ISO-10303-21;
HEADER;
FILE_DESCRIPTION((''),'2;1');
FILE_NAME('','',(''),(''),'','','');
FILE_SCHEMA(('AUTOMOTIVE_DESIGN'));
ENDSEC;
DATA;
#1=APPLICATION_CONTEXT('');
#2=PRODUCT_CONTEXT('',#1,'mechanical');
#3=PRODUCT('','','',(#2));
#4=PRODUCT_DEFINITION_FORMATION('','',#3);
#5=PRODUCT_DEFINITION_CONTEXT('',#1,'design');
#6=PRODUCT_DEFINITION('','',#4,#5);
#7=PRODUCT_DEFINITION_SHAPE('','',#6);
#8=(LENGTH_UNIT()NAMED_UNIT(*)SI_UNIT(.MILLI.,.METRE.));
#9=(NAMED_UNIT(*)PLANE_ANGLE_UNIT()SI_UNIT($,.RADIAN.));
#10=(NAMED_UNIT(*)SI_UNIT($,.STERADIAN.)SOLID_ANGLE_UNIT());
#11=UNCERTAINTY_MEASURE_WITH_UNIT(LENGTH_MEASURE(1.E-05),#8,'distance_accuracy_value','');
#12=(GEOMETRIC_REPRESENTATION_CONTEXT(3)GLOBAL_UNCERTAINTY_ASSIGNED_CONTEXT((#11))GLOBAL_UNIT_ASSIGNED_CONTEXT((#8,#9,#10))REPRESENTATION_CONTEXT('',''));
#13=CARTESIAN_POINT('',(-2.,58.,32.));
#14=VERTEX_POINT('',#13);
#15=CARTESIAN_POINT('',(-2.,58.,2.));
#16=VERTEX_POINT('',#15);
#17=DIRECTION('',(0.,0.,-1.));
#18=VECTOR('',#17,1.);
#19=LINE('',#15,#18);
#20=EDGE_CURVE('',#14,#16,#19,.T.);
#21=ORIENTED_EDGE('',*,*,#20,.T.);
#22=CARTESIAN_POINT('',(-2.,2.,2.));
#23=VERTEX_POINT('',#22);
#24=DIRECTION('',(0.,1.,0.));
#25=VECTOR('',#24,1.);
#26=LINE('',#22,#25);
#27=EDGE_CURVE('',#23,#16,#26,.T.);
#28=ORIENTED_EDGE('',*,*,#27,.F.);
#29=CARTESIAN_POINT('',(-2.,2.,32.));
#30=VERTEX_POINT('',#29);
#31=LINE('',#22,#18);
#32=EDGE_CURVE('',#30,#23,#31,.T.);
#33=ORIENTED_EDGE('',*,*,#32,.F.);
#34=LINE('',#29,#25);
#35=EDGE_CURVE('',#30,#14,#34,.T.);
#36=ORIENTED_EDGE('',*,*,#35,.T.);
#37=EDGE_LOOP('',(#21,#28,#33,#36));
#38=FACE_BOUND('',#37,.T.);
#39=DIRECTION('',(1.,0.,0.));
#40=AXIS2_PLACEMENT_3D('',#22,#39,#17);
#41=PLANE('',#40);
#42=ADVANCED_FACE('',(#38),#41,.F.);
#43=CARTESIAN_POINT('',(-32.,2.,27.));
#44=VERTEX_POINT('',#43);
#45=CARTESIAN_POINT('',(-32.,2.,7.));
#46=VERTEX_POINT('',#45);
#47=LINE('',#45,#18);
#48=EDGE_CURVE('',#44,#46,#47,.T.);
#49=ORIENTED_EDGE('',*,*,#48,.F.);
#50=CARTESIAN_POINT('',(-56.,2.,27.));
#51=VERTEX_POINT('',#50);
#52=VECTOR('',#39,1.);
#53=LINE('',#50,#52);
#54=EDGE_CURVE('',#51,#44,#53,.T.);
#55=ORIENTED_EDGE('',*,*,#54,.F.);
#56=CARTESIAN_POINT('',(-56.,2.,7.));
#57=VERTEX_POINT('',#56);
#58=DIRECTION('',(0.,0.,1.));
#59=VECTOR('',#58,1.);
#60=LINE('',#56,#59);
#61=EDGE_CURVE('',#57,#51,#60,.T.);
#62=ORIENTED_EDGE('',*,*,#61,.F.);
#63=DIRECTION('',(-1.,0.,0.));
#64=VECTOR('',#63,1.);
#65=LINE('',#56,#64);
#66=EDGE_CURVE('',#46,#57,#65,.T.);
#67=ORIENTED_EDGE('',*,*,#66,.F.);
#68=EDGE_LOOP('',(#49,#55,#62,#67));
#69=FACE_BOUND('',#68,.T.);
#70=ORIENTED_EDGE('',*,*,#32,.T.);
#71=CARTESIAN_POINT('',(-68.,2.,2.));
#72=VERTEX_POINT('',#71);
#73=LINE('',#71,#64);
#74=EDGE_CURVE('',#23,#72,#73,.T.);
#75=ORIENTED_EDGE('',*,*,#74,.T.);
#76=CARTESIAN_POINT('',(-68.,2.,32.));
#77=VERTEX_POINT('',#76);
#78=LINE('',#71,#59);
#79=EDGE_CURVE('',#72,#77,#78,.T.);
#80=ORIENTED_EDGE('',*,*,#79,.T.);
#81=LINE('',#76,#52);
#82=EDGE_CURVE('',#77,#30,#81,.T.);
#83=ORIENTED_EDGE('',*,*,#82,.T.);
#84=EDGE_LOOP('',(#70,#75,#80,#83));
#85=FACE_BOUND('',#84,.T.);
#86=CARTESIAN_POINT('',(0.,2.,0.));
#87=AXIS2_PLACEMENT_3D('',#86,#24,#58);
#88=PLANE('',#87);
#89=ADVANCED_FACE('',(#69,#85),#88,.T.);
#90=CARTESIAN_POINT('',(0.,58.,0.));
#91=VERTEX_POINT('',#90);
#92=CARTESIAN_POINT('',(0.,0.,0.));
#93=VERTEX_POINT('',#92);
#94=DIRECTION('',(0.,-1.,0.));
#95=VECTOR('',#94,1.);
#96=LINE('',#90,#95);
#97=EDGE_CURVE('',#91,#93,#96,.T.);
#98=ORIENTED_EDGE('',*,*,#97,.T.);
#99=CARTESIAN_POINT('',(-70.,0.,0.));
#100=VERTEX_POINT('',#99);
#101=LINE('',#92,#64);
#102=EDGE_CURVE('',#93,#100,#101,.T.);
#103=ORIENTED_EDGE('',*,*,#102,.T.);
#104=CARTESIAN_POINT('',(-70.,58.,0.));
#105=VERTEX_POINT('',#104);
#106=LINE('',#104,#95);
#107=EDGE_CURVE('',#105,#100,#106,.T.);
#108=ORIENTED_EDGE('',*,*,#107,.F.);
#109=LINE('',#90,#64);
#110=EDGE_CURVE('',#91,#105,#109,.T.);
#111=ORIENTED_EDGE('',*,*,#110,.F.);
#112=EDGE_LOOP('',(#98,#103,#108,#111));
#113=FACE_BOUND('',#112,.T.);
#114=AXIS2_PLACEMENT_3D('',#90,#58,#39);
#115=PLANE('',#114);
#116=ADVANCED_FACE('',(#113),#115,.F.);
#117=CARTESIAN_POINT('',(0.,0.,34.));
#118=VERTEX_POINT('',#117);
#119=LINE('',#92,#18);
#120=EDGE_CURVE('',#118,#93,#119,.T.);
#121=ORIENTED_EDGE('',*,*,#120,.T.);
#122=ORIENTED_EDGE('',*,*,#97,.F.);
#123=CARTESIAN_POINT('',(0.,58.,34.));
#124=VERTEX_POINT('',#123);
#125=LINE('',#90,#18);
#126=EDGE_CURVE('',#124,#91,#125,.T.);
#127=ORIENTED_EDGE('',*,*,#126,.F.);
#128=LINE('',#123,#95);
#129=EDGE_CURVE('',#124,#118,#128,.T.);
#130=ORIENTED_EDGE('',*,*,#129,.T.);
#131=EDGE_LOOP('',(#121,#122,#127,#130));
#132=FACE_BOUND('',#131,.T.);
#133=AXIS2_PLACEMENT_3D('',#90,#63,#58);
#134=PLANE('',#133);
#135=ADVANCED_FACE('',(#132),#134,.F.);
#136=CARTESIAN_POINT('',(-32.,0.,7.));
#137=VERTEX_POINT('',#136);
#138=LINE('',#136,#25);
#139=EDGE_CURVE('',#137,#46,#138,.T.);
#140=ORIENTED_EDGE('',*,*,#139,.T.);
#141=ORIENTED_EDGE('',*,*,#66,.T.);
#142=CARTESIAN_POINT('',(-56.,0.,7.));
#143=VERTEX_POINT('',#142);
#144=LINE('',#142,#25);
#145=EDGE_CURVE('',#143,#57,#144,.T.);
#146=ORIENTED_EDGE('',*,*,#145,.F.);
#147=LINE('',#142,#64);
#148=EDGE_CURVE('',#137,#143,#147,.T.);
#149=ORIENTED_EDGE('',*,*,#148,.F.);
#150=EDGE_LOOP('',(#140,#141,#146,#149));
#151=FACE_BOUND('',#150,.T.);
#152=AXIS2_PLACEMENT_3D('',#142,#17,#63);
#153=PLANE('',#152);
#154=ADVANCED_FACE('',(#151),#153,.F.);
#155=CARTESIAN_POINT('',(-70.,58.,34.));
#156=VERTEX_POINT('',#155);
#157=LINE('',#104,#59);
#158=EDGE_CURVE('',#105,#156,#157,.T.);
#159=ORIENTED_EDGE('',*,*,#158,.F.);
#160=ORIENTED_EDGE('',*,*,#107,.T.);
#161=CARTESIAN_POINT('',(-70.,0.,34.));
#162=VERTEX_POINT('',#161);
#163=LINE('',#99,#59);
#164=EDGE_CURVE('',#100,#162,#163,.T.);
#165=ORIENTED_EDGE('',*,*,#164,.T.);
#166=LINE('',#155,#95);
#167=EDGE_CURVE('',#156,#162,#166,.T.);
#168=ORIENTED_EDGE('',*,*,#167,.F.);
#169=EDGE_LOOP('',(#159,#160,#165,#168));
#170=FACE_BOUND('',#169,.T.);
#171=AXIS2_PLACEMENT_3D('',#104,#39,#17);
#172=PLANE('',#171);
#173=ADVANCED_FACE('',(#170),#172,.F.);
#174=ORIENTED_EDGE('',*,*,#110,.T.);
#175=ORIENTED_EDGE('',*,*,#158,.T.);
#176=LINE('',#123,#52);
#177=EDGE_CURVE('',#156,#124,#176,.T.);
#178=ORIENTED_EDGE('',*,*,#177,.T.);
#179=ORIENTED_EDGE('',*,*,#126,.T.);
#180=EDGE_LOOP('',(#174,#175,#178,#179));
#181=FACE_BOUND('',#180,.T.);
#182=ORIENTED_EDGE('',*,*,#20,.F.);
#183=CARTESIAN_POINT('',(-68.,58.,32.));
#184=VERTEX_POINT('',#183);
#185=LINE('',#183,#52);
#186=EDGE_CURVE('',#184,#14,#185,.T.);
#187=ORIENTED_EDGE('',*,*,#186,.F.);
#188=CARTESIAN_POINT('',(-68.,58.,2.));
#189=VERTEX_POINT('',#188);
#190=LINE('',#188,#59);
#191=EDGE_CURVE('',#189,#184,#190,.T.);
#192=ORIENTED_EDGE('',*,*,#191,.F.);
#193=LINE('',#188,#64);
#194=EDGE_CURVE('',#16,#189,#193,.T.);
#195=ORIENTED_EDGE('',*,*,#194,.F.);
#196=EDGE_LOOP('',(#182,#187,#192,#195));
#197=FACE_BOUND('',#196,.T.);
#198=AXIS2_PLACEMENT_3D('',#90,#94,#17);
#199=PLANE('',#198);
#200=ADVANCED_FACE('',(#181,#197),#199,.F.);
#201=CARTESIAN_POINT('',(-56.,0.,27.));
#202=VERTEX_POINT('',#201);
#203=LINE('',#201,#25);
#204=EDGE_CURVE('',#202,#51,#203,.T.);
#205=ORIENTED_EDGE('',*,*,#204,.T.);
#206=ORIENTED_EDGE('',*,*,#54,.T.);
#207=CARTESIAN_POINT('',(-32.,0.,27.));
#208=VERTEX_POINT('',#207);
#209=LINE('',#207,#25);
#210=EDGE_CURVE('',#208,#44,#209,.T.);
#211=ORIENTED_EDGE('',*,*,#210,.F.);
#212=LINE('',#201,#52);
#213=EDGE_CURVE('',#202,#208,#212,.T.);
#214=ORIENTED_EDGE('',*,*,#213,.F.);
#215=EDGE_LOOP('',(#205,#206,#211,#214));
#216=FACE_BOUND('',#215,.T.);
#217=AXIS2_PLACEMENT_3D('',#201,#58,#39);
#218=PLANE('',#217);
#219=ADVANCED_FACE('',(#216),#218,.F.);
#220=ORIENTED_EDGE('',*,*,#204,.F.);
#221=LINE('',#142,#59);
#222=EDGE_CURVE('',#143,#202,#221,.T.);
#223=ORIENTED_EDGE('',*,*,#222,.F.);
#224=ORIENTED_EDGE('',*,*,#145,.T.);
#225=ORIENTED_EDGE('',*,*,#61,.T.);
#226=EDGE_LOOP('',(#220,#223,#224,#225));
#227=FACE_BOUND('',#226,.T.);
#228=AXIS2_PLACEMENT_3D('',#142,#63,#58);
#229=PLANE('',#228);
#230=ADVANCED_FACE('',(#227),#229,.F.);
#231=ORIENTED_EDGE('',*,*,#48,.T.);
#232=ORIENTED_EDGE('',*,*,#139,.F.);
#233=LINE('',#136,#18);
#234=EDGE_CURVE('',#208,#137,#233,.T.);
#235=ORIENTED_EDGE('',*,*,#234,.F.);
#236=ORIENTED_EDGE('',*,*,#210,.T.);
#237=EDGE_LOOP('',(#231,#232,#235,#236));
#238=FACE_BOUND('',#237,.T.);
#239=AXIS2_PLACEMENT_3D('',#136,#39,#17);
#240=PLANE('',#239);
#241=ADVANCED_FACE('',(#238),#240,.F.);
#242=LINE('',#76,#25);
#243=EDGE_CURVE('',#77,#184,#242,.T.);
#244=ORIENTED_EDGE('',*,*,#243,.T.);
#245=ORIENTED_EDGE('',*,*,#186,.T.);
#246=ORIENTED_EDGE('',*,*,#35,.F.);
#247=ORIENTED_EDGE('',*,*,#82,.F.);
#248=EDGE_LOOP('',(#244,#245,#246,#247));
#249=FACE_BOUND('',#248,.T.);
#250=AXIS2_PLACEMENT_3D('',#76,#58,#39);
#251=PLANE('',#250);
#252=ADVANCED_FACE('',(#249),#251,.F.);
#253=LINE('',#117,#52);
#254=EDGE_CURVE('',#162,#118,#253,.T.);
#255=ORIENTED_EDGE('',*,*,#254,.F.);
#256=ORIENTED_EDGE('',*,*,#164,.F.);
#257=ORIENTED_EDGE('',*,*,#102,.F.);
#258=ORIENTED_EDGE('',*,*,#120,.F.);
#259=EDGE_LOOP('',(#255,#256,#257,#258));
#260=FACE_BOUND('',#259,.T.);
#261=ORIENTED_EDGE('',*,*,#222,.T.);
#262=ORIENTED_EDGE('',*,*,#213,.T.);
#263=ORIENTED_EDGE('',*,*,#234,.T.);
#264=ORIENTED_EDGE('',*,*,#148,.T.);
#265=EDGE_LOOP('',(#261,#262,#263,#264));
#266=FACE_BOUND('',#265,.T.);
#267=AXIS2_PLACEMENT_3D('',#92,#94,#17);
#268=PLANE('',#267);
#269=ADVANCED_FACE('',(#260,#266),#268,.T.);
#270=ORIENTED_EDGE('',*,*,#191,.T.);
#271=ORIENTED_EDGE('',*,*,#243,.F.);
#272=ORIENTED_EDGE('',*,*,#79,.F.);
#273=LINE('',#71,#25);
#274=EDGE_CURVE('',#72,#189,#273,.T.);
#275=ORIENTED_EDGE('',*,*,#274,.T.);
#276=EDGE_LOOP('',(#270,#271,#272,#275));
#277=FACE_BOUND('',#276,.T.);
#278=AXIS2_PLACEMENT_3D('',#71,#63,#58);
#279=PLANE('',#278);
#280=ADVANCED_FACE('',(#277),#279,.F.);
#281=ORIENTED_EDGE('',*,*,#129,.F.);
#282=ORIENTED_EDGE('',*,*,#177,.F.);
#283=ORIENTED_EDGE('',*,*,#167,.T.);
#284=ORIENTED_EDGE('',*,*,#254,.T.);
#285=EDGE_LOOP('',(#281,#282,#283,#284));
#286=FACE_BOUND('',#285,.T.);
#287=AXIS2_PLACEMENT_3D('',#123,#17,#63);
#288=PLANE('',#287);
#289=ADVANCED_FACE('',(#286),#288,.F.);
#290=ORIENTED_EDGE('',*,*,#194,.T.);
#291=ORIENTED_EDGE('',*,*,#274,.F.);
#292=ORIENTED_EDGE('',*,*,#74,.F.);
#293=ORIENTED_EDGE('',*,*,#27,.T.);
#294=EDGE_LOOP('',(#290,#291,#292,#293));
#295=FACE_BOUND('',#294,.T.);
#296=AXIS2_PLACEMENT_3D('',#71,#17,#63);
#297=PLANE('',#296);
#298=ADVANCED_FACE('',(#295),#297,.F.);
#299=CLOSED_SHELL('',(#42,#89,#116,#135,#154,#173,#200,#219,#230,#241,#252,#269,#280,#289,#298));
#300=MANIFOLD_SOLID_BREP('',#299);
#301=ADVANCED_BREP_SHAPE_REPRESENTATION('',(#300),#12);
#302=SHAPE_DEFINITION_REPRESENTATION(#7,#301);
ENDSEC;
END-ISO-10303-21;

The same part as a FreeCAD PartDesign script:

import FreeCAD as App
import Part
import Sketcher
from FreeCAD import Vector


def add_polygon(sketch, points):
    """Adds a closed chain of lines whose ends are joined by coincident constraints."""
    first, n = sketch.GeometryCount, len(points)
    for a, b in zip(points, points[1:] + points[:1]):
        sketch.addGeometry(Part.LineSegment(App.Vector(*a, 0), App.Vector(*b, 0)), False)
    for i in range(n):
        sketch.addConstraint(Sketcher.Constraint("Coincident", first + i, 2, first + (i + 1) % n, 1))

doc = App.newDocument("Part")
body = doc.addObject("PartDesign::Body", "Body")

sketch1 = body.newObject("Sketcher::SketchObject", "Sketch")
sketch1.AttachmentSupport = (doc.getObject("XZ_Plane"), [""])
sketch1.MapMode = "FlatFace"
add_polygon(sketch1, [(-70, 0), (-70, 34), (0, 34), (0, 0)])
sketch1.addConstraint(Sketcher.Constraint("Vertical", 0))
sketch1.addConstraint(Sketcher.Constraint("Horizontal", 1))
sketch1.addConstraint(Sketcher.Constraint("Vertical", 2))
sketch1.addConstraint(Sketcher.Constraint("Horizontal", 3))
sketch1.addConstraint(Sketcher.Constraint("Coincident", 2, 2, -1, 1))
sketch1.addConstraint(Sketcher.Constraint("DistanceX", 1, 1, 1, 2, 70.0))
sketch1.addConstraint(Sketcher.Constraint("DistanceY", 0, 1, 0, 2, 34.0))
pad1 = body.newObject("PartDesign::Pad", "Pad")
pad1.Profile = sketch1
pad1.Length = 58
pad1.Reversed = True

sketch2 = body.newObject("Sketcher::SketchObject", "Sketch001")
sketch2.AttachmentSupport = (doc.getObject("XZ_Plane"), [""])
sketch2.MapMode = "FlatFace"
sketch2.AttachmentOffset = App.Placement(Vector(0, 0, -58), App.Rotation())
add_polygon(sketch2, [(-68, 2), (-68, 32), (-2, 32), (-2, 2)])
sketch2.addConstraint(Sketcher.Constraint("Vertical", 0))
sketch2.addConstraint(Sketcher.Constraint("Horizontal", 1))
sketch2.addConstraint(Sketcher.Constraint("Vertical", 2))
sketch2.addConstraint(Sketcher.Constraint("Horizontal", 3))
sketch2.addConstraint(Sketcher.Constraint("DistanceX", 1, 1, 1, 2, 66.0))
sketch2.addConstraint(Sketcher.Constraint("DistanceY", 0, 1, 0, 2, 30.0))
sketch2.addConstraint(Sketcher.Constraint("DistanceX", 0, 2, -1, 1, 68.0))
sketch2.addConstraint(Sketcher.Constraint("DistanceY", -1, 1, 0, 2, 32.0))
pocket1 = body.newObject("PartDesign::Pocket", "Pocket")
pocket1.Profile = sketch2
pocket1.Length = 56
pocket1.Reversed = True

sketch3 = body.newObject("Sketcher::SketchObject", "Sketch002")
sketch3.AttachmentSupport = (doc.getObject("XZ_Plane"), [""])
sketch3.MapMode = "FlatFace"
sketch3.AttachmentOffset = App.Placement(Vector(0, 0, -2), App.Rotation())
add_polygon(sketch3, [(-56, 7), (-56, 27), (-32, 27), (-32, 7)])
sketch3.addConstraint(Sketcher.Constraint("Vertical", 0))
sketch3.addConstraint(Sketcher.Constraint("Horizontal", 1))
sketch3.addConstraint(Sketcher.Constraint("Vertical", 2))
sketch3.addConstraint(Sketcher.Constraint("Horizontal", 3))
sketch3.addConstraint(Sketcher.Constraint("DistanceX", 1, 1, 1, 2, 24.0))
sketch3.addConstraint(Sketcher.Constraint("DistanceY", 0, 1, 0, 2, 20.0))
sketch3.addConstraint(Sketcher.Constraint("DistanceX", 0, 2, -1, 1, 56.0))
sketch3.addConstraint(Sketcher.Constraint("DistanceY", -1, 1, 0, 2, 27.0))
pocket2 = body.newObject("PartDesign::Pocket", "Pocket001")
pocket2.Profile = sketch3
pocket2.Length = 2
pocket2.Reversed = True

doc.recompute()
